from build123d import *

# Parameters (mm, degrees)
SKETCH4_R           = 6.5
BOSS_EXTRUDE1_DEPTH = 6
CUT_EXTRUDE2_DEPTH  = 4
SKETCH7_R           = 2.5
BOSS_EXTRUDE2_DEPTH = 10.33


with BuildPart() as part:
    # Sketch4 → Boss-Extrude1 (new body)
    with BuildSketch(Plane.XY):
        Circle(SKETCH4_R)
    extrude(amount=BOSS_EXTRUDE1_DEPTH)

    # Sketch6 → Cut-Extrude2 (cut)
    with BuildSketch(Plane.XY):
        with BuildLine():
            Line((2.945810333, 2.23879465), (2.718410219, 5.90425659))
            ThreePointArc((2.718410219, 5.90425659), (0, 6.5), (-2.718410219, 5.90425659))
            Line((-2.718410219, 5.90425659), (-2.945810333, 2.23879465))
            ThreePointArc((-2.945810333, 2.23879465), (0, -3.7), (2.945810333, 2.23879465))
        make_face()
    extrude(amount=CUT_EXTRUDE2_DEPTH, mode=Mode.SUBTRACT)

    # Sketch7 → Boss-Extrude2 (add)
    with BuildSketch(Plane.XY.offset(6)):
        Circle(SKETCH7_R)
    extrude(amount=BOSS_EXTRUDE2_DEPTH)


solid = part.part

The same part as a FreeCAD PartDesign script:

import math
import FreeCAD as App
import Part
import Sketcher
Q = App.Units.Quantity

doc = App.newDocument("Part")
body = doc.addObject("PartDesign::Body", "Body")

# Sketch on XY plane
sketch1 = body.newObject("Sketcher::SketchObject", "Sketch")
sketch1.AttachmentSupport = (doc.getObject("XY_Plane"), [""])
sketch1.MapMode = "FlatFace"
sketch1.addGeometry(Part.Circle(App.Vector(0, 0, 0), App.Vector(0, 0, 1), 6), False)
sketch1.addConstraint([
    Sketcher.Constraint("Coincident", 0, 3, -1, 1),
    Sketcher.Constraint("Diameter", 0, Q("13 mm")),
])
pad1 = body.newObject("PartDesign::Pad", "Pad")
pad1.Profile = sketch1
pad1.Length = 6

# Sketch on XY plane
sketch2 = body.newObject("Sketcher::SketchObject", "Sketch001")
sketch2.AttachmentSupport = (doc.getObject("XY_Plane"), [""])
sketch2.MapMode = "FlatFace"
sketch2.addGeometry([
    Part.LineSegment(App.Vector(2.9, 2.2, 0), App.Vector(2.7, 5.9, 0)),
    Part.ArcOfCircle(Part.Circle(App.Vector(0, 0, 0), App.Vector(0, 0, 1), 6.5), math.radians(65), math.radians(115)),
    Part.LineSegment(App.Vector(-2.7, 5.9, 0), App.Vector(-2.9, 2.2, 0)),
    Part.ArcOfCircle(Part.Circle(App.Vector(0, 0, 0), App.Vector(0, 0, 1), 3.7), math.radians(143), math.radians(397)),
], False)
sketch2.addConstraint([
    Sketcher.Constraint("Coincident", 0, 2, 1, 1),
    Sketcher.Constraint("Coincident", 1, 2, 2, 1),
    Sketcher.Constraint("Coincident", 2, 2, 3, 1),
    Sketcher.Constraint("Coincident", 3, 2, 0, 1),
    Sketcher.Constraint("Coincident", 1, 3, -1, 1),
    Sketcher.Constraint("Coincident", 3, 3, -1, 1),
    Sketcher.Constraint("Horizontal", 0, 2, 1, 2),
    Sketcher.Constraint("Horizontal", 2, 2, 3, 2),
    Sketcher.Constraint("Radius", 1, Q("6.5 mm")),
    Sketcher.Constraint("Radius", 3, Q("3.7 mm")),
    Sketcher.Constraint("Angle", 0, Q("93.55 deg")),
    Sketcher.Constraint("DistanceX", 2, 2, 1, 2, Q("0.2274 mm")),
])
pocket1 = body.newObject("PartDesign::Pocket", "Pocket")
pocket1.Profile = sketch2
pocket1.Length = 4
pocket1.Reversed = True

# Sketch on XY plane
sketch3 = body.newObject("Sketcher::SketchObject", "Sketch002")
sketch3.AttachmentSupport = (doc.getObject("XY_Plane"), [""])
sketch3.MapMode = "FlatFace"
sketch3.AttachmentOffset = App.Placement(App.Vector(0, 0, 6), App.Rotation())
sketch3.addGeometry(Part.Circle(App.Vector(0, 0, 0), App.Vector(0, 0, 1), 2.5), False)
sketch3.addConstraint([
    Sketcher.Constraint("Coincident", 0, 3, -1, 1),
    Sketcher.Constraint("Diameter", 0, Q("5 mm")),
])
pad2 = body.newObject("PartDesign::Pad", "Pad001")
pad2.Profile = sketch3
pad2.Length = 10.33

doc.recompute()
